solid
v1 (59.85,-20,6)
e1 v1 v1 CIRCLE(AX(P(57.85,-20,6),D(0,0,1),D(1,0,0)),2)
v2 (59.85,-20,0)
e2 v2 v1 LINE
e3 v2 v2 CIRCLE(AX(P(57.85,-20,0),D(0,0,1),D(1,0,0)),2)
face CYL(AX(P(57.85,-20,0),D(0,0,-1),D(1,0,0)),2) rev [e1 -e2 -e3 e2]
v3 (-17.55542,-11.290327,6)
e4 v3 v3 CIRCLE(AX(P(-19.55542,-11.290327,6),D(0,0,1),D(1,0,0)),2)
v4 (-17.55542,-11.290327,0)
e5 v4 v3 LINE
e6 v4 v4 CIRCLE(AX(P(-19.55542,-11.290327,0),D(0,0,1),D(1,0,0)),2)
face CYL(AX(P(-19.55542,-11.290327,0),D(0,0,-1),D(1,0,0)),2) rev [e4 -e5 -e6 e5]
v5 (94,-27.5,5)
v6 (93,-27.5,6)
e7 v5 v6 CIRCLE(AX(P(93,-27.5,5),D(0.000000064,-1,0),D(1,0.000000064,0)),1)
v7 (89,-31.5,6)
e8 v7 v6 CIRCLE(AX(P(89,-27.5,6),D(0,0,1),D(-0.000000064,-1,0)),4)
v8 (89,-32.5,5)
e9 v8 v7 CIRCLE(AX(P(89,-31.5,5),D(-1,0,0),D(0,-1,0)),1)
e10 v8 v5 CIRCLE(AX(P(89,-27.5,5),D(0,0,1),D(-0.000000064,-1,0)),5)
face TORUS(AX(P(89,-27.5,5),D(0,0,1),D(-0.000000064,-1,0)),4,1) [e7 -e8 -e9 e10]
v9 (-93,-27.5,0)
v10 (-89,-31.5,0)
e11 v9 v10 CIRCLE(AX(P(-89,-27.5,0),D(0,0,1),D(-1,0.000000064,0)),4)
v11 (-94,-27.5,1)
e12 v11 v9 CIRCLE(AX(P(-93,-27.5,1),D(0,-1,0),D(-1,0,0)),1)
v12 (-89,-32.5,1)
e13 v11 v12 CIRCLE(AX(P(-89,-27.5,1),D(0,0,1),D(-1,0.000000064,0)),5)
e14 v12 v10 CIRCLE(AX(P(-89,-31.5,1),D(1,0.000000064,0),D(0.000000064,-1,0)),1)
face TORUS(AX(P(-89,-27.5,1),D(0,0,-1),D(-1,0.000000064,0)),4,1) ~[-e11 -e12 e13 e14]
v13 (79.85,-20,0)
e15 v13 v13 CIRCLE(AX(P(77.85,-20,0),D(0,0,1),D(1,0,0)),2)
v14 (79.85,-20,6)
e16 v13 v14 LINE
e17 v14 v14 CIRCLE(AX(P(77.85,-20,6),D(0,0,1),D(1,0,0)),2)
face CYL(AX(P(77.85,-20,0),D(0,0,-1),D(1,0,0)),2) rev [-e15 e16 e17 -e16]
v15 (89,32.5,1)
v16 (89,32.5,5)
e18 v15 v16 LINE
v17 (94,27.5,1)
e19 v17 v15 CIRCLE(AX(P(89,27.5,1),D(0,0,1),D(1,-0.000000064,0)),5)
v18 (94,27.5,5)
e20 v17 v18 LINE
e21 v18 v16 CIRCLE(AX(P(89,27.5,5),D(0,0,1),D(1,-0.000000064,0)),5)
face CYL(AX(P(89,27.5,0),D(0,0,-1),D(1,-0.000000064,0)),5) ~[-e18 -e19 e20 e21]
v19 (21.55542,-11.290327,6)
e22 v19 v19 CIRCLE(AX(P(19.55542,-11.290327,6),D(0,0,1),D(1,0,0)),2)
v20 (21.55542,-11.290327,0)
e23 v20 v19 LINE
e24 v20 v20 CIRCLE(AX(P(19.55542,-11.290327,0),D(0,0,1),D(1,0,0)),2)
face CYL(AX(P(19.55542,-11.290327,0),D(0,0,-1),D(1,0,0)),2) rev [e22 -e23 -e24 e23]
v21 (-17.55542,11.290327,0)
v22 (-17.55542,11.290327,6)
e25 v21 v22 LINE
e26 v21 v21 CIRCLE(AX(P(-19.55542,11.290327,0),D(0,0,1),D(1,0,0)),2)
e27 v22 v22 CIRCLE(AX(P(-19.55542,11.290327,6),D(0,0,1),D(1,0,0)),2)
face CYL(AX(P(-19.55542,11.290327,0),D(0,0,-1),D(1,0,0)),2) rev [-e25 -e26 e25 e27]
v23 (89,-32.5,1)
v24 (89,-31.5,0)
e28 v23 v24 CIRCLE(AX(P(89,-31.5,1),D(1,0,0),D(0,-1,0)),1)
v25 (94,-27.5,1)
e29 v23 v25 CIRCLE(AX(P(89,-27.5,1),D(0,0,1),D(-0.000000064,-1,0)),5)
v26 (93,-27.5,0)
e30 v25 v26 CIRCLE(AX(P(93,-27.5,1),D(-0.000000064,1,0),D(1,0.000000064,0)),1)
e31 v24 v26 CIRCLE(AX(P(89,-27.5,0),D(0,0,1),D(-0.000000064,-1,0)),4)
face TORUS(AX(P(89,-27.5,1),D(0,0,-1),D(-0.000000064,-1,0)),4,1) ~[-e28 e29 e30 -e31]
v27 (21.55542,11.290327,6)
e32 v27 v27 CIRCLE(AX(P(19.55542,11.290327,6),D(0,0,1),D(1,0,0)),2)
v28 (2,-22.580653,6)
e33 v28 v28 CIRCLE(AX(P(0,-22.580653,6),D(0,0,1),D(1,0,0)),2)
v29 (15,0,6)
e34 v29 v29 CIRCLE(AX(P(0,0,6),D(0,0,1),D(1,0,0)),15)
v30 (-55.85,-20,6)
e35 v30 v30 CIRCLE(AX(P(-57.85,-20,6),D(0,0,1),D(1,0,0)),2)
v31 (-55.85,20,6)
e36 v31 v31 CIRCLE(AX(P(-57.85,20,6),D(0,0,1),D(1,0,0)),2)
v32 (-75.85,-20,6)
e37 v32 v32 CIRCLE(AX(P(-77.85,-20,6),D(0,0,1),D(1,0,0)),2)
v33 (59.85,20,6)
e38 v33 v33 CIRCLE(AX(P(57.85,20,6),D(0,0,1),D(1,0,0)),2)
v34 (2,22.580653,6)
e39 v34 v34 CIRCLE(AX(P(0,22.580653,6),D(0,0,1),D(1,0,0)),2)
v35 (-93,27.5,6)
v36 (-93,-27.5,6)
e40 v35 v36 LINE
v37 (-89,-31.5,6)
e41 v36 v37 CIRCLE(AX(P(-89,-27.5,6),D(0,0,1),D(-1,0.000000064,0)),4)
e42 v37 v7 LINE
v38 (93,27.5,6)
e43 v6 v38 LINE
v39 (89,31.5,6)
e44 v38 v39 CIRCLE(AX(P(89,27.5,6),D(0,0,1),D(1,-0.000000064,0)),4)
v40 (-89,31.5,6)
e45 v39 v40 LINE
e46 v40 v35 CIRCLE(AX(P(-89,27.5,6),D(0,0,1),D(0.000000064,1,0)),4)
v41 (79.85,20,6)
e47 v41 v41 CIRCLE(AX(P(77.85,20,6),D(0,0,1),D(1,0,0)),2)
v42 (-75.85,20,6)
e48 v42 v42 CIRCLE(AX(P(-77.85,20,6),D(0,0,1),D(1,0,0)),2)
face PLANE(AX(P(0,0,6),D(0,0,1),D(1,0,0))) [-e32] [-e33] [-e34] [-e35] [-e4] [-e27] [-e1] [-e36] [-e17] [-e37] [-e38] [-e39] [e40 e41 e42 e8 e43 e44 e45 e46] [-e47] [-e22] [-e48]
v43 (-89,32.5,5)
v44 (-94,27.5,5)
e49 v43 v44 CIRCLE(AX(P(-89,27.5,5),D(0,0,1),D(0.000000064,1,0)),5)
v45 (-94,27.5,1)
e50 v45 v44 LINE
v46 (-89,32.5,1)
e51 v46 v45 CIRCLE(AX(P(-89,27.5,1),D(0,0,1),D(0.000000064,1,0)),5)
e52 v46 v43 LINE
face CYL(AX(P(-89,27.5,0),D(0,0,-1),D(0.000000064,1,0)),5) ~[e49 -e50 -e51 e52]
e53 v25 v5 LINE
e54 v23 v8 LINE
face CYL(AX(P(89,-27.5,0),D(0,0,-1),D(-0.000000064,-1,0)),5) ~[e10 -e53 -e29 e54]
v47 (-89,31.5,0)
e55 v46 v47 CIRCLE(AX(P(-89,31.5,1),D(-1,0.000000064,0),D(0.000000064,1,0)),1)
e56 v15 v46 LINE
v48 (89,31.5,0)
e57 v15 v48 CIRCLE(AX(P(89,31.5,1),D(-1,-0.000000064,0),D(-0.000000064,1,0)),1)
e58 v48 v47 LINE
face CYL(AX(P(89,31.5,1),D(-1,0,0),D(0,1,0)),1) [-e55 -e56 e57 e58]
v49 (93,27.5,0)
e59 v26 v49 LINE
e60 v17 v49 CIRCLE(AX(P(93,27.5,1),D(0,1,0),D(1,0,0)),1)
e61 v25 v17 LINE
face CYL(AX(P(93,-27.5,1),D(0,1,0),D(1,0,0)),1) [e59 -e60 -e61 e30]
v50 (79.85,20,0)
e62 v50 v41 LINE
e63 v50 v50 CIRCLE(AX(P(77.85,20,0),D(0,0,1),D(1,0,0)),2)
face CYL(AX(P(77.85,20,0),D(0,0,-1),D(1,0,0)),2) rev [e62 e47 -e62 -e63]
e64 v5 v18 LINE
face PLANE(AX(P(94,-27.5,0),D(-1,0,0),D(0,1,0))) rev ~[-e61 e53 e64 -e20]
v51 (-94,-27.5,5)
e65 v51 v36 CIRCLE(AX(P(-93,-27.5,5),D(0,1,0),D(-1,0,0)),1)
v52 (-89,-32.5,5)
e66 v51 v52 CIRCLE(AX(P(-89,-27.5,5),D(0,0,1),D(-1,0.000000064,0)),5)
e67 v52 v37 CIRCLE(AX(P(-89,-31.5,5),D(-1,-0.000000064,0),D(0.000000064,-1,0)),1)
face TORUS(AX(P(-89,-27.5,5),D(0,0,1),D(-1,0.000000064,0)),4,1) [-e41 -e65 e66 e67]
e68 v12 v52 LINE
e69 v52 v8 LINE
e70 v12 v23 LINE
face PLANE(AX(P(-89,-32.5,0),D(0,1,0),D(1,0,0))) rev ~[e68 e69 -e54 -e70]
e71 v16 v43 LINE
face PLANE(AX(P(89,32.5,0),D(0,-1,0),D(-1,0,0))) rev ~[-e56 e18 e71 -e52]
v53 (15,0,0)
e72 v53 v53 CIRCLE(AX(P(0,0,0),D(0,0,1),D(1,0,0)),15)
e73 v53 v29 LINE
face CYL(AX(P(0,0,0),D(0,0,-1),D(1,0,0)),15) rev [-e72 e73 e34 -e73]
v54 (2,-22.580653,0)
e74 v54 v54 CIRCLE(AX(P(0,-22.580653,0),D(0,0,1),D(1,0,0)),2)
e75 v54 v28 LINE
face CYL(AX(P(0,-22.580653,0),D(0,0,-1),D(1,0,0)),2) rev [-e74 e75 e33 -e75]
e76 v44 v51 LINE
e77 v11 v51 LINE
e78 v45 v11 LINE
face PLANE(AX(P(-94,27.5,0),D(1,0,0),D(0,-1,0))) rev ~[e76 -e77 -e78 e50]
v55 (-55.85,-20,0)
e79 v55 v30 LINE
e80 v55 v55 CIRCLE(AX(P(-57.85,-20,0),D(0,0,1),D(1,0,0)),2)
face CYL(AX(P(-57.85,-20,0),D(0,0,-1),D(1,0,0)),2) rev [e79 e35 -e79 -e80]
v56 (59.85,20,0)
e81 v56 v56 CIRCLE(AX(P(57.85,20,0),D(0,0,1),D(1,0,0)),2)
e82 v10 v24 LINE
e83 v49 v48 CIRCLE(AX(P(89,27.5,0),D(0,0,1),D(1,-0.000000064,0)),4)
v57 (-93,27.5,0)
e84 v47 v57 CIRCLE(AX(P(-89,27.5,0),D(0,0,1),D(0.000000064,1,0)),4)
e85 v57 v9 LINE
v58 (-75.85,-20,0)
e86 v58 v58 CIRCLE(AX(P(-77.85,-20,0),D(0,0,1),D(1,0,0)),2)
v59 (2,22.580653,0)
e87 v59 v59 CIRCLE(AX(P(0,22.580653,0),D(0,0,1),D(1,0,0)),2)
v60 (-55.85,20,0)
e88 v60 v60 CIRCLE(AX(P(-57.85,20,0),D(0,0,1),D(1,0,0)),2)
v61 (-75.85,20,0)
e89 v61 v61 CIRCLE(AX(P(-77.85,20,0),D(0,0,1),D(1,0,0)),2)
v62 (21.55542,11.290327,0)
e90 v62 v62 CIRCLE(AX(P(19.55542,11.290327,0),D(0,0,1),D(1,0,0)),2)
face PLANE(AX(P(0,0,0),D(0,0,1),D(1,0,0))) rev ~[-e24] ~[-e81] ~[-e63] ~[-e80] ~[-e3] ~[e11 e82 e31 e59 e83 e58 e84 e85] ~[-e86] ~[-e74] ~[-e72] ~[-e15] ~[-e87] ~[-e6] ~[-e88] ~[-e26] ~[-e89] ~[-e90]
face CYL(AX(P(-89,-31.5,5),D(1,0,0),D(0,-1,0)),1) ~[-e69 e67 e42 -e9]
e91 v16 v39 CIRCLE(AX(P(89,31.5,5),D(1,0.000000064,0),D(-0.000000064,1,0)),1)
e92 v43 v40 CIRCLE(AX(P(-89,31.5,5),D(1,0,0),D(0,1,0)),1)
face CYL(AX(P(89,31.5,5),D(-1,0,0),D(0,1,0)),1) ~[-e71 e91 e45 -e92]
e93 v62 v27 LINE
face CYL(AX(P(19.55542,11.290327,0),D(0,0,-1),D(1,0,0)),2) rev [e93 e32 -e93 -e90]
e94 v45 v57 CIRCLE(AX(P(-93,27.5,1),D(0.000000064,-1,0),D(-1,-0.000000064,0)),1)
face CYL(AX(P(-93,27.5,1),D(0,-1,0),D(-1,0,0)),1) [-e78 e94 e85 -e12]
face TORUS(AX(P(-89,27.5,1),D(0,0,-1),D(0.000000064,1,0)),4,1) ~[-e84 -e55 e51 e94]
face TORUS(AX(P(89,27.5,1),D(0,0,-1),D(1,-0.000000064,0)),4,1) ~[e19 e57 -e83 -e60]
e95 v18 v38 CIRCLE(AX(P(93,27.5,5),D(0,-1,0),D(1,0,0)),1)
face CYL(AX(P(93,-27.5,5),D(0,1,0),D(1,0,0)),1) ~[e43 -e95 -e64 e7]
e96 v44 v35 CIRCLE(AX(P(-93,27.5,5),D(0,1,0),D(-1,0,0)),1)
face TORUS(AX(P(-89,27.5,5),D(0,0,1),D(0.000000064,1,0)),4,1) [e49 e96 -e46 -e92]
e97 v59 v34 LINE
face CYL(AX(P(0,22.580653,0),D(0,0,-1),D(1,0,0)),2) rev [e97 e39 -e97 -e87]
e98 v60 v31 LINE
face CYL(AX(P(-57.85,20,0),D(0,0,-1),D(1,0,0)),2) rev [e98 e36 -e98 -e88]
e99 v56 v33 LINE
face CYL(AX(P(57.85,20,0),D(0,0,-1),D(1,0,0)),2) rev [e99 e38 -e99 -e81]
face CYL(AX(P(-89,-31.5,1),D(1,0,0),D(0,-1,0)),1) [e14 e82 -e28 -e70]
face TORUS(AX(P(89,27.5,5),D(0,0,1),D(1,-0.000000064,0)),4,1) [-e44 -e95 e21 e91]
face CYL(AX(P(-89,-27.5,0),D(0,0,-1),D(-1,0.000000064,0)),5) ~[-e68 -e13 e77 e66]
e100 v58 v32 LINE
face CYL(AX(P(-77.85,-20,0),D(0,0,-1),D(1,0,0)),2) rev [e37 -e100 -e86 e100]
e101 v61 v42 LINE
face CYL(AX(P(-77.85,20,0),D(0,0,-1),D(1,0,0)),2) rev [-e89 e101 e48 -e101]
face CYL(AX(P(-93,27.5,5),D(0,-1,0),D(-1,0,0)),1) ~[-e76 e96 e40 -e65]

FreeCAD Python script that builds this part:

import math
import FreeCAD as App
import Part
import Sketcher
from FreeCAD import Vector
Q = App.Units.Quantity


def edges_at(feature, points):
    """Names of the edges that pass closest to the given points."""
    edges = feature.Shape.Edges
    near = lambda p: min(range(len(edges)), key=lambda i: edges[i].distToShape(Part.Vertex(*p))[0])
    return sorted({f"Edge{near(p) + 1}" for p in points})

doc = App.newDocument("Part")
body = doc.addObject("PartDesign::Body", "Body")

# Sketch on XY plane
sketch1 = body.newObject("Sketcher::SketchObject", "Sketch")
sketch1.AttachmentSupport = (doc.getObject("XY_Plane"), [""])
sketch1.MapMode = "FlatFace"
sketch1.addGeometry([
    Part.LineSegment(Vector(89, 32.5, 0), Vector(-89, 32.5, 0)),  # 0
    Part.ArcOfCircle(Part.Circle(Vector(-89, 27.5, 0), Vector(0, 0, 1), 5), math.radians(90), math.radians(180)),  # 1
    Part.LineSegment(Vector(-94, 27.5, 0), Vector(-94, -27.5, 0)),  # 2
    Part.ArcOfCircle(Part.Circle(Vector(-89, -27.5, 0), Vector(0, 0, 1), 5), math.radians(180), math.radians(270)),  # 3
    Part.LineSegment(Vector(-89, -32.5, 0), Vector(89, -32.5, 0)),  # 4
    Part.ArcOfCircle(Part.Circle(Vector(89, -27.5, 0), Vector(0, 0, 1), 5), math.radians(-90), math.radians(0)),  # 5
    Part.LineSegment(Vector(94, -27.5, 0), Vector(94, 27.5, 0)),  # 6
    Part.ArcOfCircle(Part.Circle(Vector(89, 27.5, 0), Vector(0, 0, 1), 5), math.radians(0), math.radians(90)),  # 7
    Part.Circle(Vector(-77.8, -20, 0), Vector(0, 0, 1), 2),  # 8
    Part.Circle(Vector(-57.9, -20, 0), Vector(0, 0, 1), 2),  # 9
    Part.Circle(Vector(-19.6, -11.3, 0), Vector(0, 0, 1), 2),  # 10
    Part.Circle(Vector(0, -22.6, 0), Vector(0, 0, 1), 2),  # 11
    Part.Circle(Vector(57.9, -20, 0), Vector(0, 0, 1), 2),  # 12
    Part.Circle(Vector(77.8, -20, 0), Vector(0, 0, 1), 2),  # 13
    Part.Circle(Vector(19.6, -11.3, 0), Vector(0, 0, 1), 2),  # 14
    Part.Circle(Vector(-19.6, 11.3, 0), Vector(0, 0, 1), 2),  # 15
    Part.Circle(Vector(-77.8, 20, 0), Vector(0, 0, 1), 2),  # 16
    Part.Circle(Vector(-57.9, 20, 0), Vector(0, 0, 1), 2),  # 17
    Part.Circle(Vector(0, 0, 0), Vector(0, 0, 1), 15),  # 18
    Part.Circle(Vector(19.6, 11.3, 0), Vector(0, 0, 1), 2),  # 19
    Part.Circle(Vector(0, 22.6, 0), Vector(0, 0, 1), 2),  # 20
    Part.Circle(Vector(57.9, 20, 0), Vector(0, 0, 1), 2),  # 21
    Part.Circle(Vector(77.8, 20, 0), Vector(0, 0, 1), 2),  # 22
], False)
sketch1.addConstraint([
    Sketcher.Constraint("Tangent", 0, 2, 1, 1),
    Sketcher.Constraint("Tangent", 1, 2, 2, 1),
    Sketcher.Constraint("Tangent", 2, 2, 3, 1),
    Sketcher.Constraint("Tangent", 3, 2, 4, 1),
    Sketcher.Constraint("Tangent", 4, 2, 5, 1),
    Sketcher.Constraint("Tangent", 5, 2, 6, 1),
    Sketcher.Constraint("Tangent", 6, 2, 7, 1),
    Sketcher.Constraint("Tangent", 7, 2, 0, 1),
    Sketcher.Constraint("Horizontal", 0),
    Sketcher.Constraint("Vertical", 2),
    Sketcher.Constraint("Horizontal", 4),
    Sketcher.Constraint("Vertical", 6),
    Sketcher.Constraint("Coincident", 18, 3, -1, 1),
    Sketcher.Constraint("Equal", 1, 3),
    Sketcher.Constraint("Equal", 3, 5),
    Sketcher.Constraint("Equal", 5, 7),
    Sketcher.Constraint("Equal", 8, 9),
    Sketcher.Constraint("Equal", 9, 10),
    Sketcher.Constraint("Equal", 10, 11),
    Sketcher.Constraint("Equal", 11, 12),
    Sketcher.Constraint("Equal", 12, 13),
    Sketcher.Constraint("Equal", 13, 14),
    Sketcher.Constraint("Equal", 14, 15),
    Sketcher.Constraint("Equal", 15, 16),
    Sketcher.Constraint("Equal", 16, 17),
    Sketcher.Constraint("Equal", 17, 19),
    Sketcher.Constraint("Equal", 19, 20),
    Sketcher.Constraint("Equal", 20, 21),
    Sketcher.Constraint("Equal", 21, 22),
    Sketcher.Constraint("Symmetric", 1, 3, 5, 3, -1, 1),
    Sketcher.Constraint("Symmetric", 14, 3, 15, 3, -1, 1),
    Sketcher.Constraint("Symmetric", 13, 3, 16, 3, -1, 1),
    Sketcher.Constraint("Symmetric", 12, 3, 17, 3, -1, 1),
    Sketcher.Constraint("Symmetric", 10, 3, 19, 3, -1, 1),
    Sketcher.Constraint("Symmetric", 11, 3, 20, 3, -1, 1),
    Sketcher.Constraint("Symmetric", 9, 3, 21, 3, -1, 1),
    Sketcher.Constraint("Symmetric", 8, 3, 22, 3, -1, 1),
    Sketcher.Constraint("Symmetric", 9, 3, 12, 3, -2),
    Sketcher.Constraint("Symmetric", 8, 3, 13, 3, -2),
    Sketcher.Constraint("Symmetric", 10, 3, 14, 3, -2),
    Sketcher.Constraint("PointOnObject", 11, 3, -2),
    Sketcher.Constraint("Horizontal", 8, 3, 9, 3),
    Sketcher.Constraint("Diameter", 8, Q("4 mm")),
    Sketcher.Constraint("Diameter", 18, Q("30 mm")),
    Sketcher.Constraint("Radius", 1, Q("5 mm")),
    Sketcher.Constraint("DistanceX", 0, 2, 0, 1, Q("178 mm")),
    Sketcher.Constraint("DistanceY", 2, 2, 2, 1, Q("55 mm")),
    Sketcher.Constraint("DistanceY", 8, 3, -1, 1, Q("20 mm")),
    Sketcher.Constraint("DistanceX", 8, 3, 9, 3, Q("20 mm")),
    Sketcher.Constraint("DistanceX", 9, 3, 12, 3, Q("115.7 mm")),
    Sketcher.Constraint("DistanceX", 10, 3, -1, 1, Q("19.55542 mm")),
    Sketcher.Constraint("DistanceY", 11, 3, 15, 3, Q("33.87098 mm")),
    Sketcher.Constraint("DistanceY", 10, 3, -1, 1, Q("11.290327 mm")),
])
pad1 = body.newObject("PartDesign::Pad", "Pad")
pad1.Profile = sketch1
pad1.Length = 6
doc.recompute()

fillet = body.newObject("PartDesign::Fillet", "Fillet")
fillet.Base = (pad1, edges_at(pad1, [
    (-94, 0, 6),
    (-89, 32.5, 3),
    (-94, 27.5, 3),
    (-92.536, 31.036, 0),
    (-92.536, 31.036, 6),
    (-94, -27.5, 3),
    (-94, 0, 0),
    (-89, -32.5, 3),
    (-92.536, -31.036, 0),
    (-92.536, -31.036, 6),
    (0, -32.5, 6),
    (0, -32.5, 0),
    (89, -32.5, 3),
    (94, -27.5, 3),
    (92.536, -31.036, 0),
    (92.536, -31.036, 6),
    (94, 27.5, 3),
    (94, 0, 0),
    (94, 0, 6),
    (89, 32.5, 3),
    (0, 32.5, 0),
    (0, 32.5, 6),
    (92.536, 31.036, 0),
    (92.536, 31.036, 6),
]))
fillet.Radius = 1

doc.recompute()
